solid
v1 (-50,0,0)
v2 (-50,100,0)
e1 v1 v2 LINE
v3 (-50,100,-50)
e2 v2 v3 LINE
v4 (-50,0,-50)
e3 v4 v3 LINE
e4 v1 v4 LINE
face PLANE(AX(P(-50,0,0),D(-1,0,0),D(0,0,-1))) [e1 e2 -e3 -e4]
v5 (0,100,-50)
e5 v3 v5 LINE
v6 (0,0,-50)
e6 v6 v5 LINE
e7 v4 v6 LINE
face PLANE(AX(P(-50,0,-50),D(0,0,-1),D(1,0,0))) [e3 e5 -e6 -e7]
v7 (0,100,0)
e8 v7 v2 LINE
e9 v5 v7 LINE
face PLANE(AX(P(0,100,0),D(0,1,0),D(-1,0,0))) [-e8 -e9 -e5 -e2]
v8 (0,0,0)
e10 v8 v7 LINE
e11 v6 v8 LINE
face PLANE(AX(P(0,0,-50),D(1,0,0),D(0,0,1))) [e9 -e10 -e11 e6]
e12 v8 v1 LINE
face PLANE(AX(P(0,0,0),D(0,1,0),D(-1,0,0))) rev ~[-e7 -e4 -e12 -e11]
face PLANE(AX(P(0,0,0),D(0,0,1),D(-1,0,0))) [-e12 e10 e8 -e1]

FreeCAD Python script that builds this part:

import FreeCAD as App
import Part
import Sketcher
Q = App.Units.Quantity


def add_polygon(sketch, points):
    """Adds a closed chain of lines whose ends are joined by coincident constraints."""
    first, n = sketch.GeometryCount, len(points)
    for a, b in zip(points, points[1:] + points[:1]):
        sketch.addGeometry(Part.LineSegment(App.Vector(*a, 0), App.Vector(*b, 0)), False)
    for i in range(n):
        sketch.addConstraint(Sketcher.Constraint("Coincident", first + i, 2, first + (i + 1) % n, 1))

doc = App.newDocument("Part")
params = doc.addObject("Spreadsheet::Sheet", "Params")
for row, (alias, value) in enumerate([
    ("pad1_length", "3.9370079 in"),
], start=1):
    params.set(f"A{row}", alias)
    params.set(f"B{row}", "=" + value)
    params.setAlias(f"B{row}", alias)

body = doc.addObject("PartDesign::Body", "Body")

# Sketch on XZ plane
sketch1 = body.newObject("Sketcher::SketchObject", "Sketch")
sketch1.AttachmentSupport = (doc.getObject("XZ_Plane"), [""])
sketch1.MapMode = "FlatFace"
add_polygon(sketch1, [(-50, 0), (0, 0), (0, -50), (-50, -50)])  # lines 0-3
sketch1.addConstraint([
    Sketcher.Constraint("Horizontal", 0),
    Sketcher.Constraint("Vertical", 1),
    Sketcher.Constraint("Horizontal", 2),
    Sketcher.Constraint("Vertical", 3),
    Sketcher.Constraint("Coincident", 0, 2, -1, 1),
    Sketcher.Constraint("Equal", 2, 1),
    Sketcher.Constraint("DistanceX", 0, 1, 0, 2, Q("1.9685 in")),
])
pad1 = body.newObject("PartDesign::Pad", "Pad")
pad1.Profile = sketch1
pad1.setExpression("Length", "Params.pad1_length")
pad1.Reversed = True

doc.recompute()
